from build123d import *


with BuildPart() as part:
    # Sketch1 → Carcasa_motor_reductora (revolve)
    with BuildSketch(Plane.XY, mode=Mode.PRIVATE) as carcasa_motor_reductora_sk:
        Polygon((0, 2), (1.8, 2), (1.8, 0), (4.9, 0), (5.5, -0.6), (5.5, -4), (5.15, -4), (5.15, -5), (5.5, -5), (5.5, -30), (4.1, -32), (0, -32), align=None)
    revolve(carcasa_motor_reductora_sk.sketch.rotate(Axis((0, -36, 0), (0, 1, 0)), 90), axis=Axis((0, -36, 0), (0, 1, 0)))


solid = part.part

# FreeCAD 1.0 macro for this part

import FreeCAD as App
import Part
import Sketcher

V = App.Vector
Q = App.Units.Quantity

doc = App.newDocument("Part")
params = doc.addObject("Spreadsheet::Sheet", "Params")
for row, (alias, value) in enumerate([
    ("sketch1_height", "34 mm"),
    ("sketch1_height2", "25 mm"),
    ("sketch1_height3", "1 mm"),
    ("sketch1_height4", "2 mm"),
    ("sketch1_width", "1.8 mm"),
    ("revolution_angle", "360 deg"),
], start=1):
    params.set(f"A{row}", alias)
    params.set(f"B{row}", "=" + value)
    params.setAlias(f"B{row}", alias)

body = doc.addObject("PartDesign::Body", "Body")

sketch1 = body.newObject("Sketcher::SketchObject", "Sketch")
sketch1.AttachmentSupport = (doc.getObject("XY_Plane"), [""])
sketch1.MapMode = "FlatFace"
sketch1.addGeometry([
    Part.LineSegment(V(1.8, 2, 0), V(0, 2, 0)),
    Part.LineSegment(V(0, 2, 0), V(0, -32, 0)),
    Part.LineSegment(V(0, -32, 0), V(4.1, -32, 0)),
    Part.LineSegment(V(4.1, -32, 0), V(5.5, -30, 0)),
    Part.LineSegment(V(5.5, -30, 0), V(5.5, -5, 0)),
    Part.LineSegment(V(5.5, -5, 0), V(5.15, -5, 0)),
    Part.LineSegment(V(5.15, -5, 0), V(5.15, -4, 0)),
    Part.LineSegment(V(5.15, -4, 0), V(5.5, -4, 0)),
    Part.LineSegment(V(5.5, -4, 0), V(5.5, -0.6, 0)),
    Part.LineSegment(V(5.5, -0.6, 0), V(4.9, 0, 0)),
    Part.LineSegment(V(4.9, 0, 0), V(1.8, 0, 0)),
    Part.LineSegment(V(1.8, 0, 0), V(1.8, 2, 0)),
], False)
sketch1.addConstraint([
    Sketcher.Constraint("Coincident", 0, 2, 1, 1),
    Sketcher.Constraint("Coincident", 1, 2, 2, 1),
    Sketcher.Constraint("Coincident", 2, 2, 3, 1),
    Sketcher.Constraint("Coincident", 3, 2, 4, 1),
    Sketcher.Constraint("Coincident", 4, 2, 5, 1),
    Sketcher.Constraint("Coincident", 5, 2, 6, 1),
    Sketcher.Constraint("Coincident", 6, 2, 7, 1),
    Sketcher.Constraint("Coincident", 7, 2, 8, 1),
    Sketcher.Constraint("Coincident", 8, 2, 9, 1),
    Sketcher.Constraint("Coincident", 9, 2, 10, 1),
    Sketcher.Constraint("Coincident", 10, 2, 11, 1),
    Sketcher.Constraint("Coincident", 11, 2, 0, 1),
    Sketcher.Constraint("Horizontal", 0),
    Sketcher.Constraint("Vertical", 1),
    Sketcher.Constraint("Horizontal", 2),
    Sketcher.Constraint("Vertical", 4),
    Sketcher.Constraint("Horizontal", 5),
    Sketcher.Constraint("Vertical", 6),
    Sketcher.Constraint("Horizontal", 7),
    Sketcher.Constraint("Vertical", 8),
    Sketcher.Constraint("Horizontal", 10),
    Sketcher.Constraint("Vertical", 11),
    Sketcher.Constraint("PointOnObject", 0, 2, -2),
    Sketcher.Constraint("PointOnObject", 9, 2, -1),
    Sketcher.Constraint("Vertical", 4, 2, 7, 2),
    Sketcher.Constraint("DistanceY", 1, 2, 1, 1, Q("34 mm")),
    Sketcher.Constraint("DistanceY", 4, 1, 4, 2, Q("25 mm")),
    Sketcher.Constraint("DistanceY", 6, 1, 6, 2, Q("1 mm")),
    Sketcher.Constraint("DistanceY", 11, 1, 11, 2, Q("2 mm")),
    Sketcher.Constraint("Angle", 9, Q("135 deg")),
    Sketcher.Constraint("DistanceX", 0, 2, 0, 1, Q("1.8 mm")),
    Sketcher.Constraint("DistanceX", 2, 1, 2, 2, Q("4.1 mm")),
    Sketcher.Constraint("DistanceX", 10, 2, 10, 1, Q("3.1 mm")),
    Sketcher.Constraint("DistanceY", 8, 1, 8, 2, Q("3.4 mm")),
    Sketcher.Constraint("DistanceY", 3, 2, -1, 1, Q("30 mm")),
    Sketcher.Constraint("DistanceX", 5, 2, 5, 1, Q("0.35 mm")),
])
sketch1.setExpression("Constraints[25]", "Params.sketch1_height")
sketch1.setExpression("Constraints[26]", "Params.sketch1_height2")
sketch1.setExpression("Constraints[27]", "Params.sketch1_height3")
sketch1.setExpression("Constraints[28]", "Params.sketch1_height4")
sketch1.setExpression("Constraints[30]", "Params.sketch1_width")
revolution = body.newObject("PartDesign::Revolution", "Revolution")
revolution.Profile = sketch1
revolution.ReferenceAxis = (sketch1, ["V_Axis"])
revolution.setExpression("Angle", "Params.revolution_angle")

doc.recompute()
